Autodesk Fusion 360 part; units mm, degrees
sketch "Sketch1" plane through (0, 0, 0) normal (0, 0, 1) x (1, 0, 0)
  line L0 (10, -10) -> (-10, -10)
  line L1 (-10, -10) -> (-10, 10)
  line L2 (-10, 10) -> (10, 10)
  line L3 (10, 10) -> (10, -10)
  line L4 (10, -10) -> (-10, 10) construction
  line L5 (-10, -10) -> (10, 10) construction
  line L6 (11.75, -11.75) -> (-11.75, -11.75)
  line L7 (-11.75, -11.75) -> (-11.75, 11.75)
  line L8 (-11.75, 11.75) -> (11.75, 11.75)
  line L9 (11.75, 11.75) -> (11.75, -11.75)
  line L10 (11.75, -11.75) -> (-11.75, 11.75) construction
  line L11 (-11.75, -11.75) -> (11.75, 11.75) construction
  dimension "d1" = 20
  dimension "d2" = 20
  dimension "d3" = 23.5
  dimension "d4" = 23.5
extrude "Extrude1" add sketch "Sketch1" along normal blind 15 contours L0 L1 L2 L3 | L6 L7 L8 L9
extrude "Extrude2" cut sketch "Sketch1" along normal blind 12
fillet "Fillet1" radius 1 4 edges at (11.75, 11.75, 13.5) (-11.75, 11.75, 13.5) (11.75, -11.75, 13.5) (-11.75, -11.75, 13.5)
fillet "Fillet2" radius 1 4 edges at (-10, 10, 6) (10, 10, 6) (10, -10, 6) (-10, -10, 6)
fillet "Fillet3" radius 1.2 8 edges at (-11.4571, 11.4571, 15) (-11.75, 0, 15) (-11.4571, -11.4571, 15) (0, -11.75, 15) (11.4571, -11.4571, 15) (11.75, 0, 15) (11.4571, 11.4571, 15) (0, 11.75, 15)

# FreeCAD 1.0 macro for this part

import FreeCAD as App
import Part
import Sketcher
Q = App.Units.Quantity


def edges_at(feature, points):
    """Names of the edges that pass closest to the given points."""
    edges = feature.Shape.Edges
    near = lambda p: min(range(len(edges)), key=lambda i: edges[i].distToShape(Part.Vertex(*p))[0])
    return sorted({f"Edge{near(p) + 1}" for p in points})


def add_polygon(sketch, points):
    """Adds a closed chain of lines whose ends are joined by coincident constraints."""
    first, n = sketch.GeometryCount, len(points)
    for a, b in zip(points, points[1:] + points[:1]):
        sketch.addGeometry(Part.LineSegment(App.Vector(*a, 0), App.Vector(*b, 0)), False)
    for i in range(n):
        sketch.addConstraint(Sketcher.Constraint("Coincident", first + i, 2, first + (i + 1) % n, 1))

doc = App.newDocument("Part")
body = doc.addObject("PartDesign::Body", "Body")

# Sketch on XY plane
sketch1 = body.newObject("Sketcher::SketchObject", "Sketch")
sketch1.AttachmentSupport = (doc.getObject("XY_Plane"), [""])
sketch1.MapMode = "FlatFace"
add_polygon(sketch1, [(-12, -12), (12, -12), (12, 12), (-12, 12)])  # lines 0-3
sketch1.addConstraint([
    Sketcher.Constraint("Horizontal", 0),
    Sketcher.Constraint("Vertical", 1),
    Sketcher.Constraint("Horizontal", 2),
    Sketcher.Constraint("Vertical", 3),
    Sketcher.Constraint("Symmetric", 0, 2, 2, 2, -1, 1),
    Sketcher.Constraint("Equal", 2, 1),
    Sketcher.Constraint("DistanceX", 0, 1, 0, 2, Q("23.5 mm")),
])
pad1 = body.newObject("PartDesign::Pad", "Pad")
pad1.Profile = sketch1
pad1.Length = 15

# Sketch on XY plane
sketch2 = body.newObject("Sketcher::SketchObject", "Sketch001")
sketch2.AttachmentSupport = (doc.getObject("XY_Plane"), [""])
sketch2.MapMode = "FlatFace"
add_polygon(sketch2, [(-12, -12), (12, -12), (12, 12), (-12, 12)])  # lines 0-3
add_polygon(sketch2, [(10, 10), (10, -10), (-10, -10), (-10, 10)])  # lines 4-7
sketch2.addConstraint([
    Sketcher.Constraint("Horizontal", 0),
    Sketcher.Constraint("Vertical", 1),
    Sketcher.Constraint("Horizontal", 2),
    Sketcher.Constraint("Vertical", 3),
    Sketcher.Constraint("Vertical", 4),
    Sketcher.Constraint("Horizontal", 5),
    Sketcher.Constraint("Vertical", 6),
    Sketcher.Constraint("Horizontal", 7),
    Sketcher.Constraint("Symmetric", 0, 2, 2, 2, -1, 1),
    Sketcher.Constraint("Symmetric", 4, 2, 6, 2, -1, 1),
    Sketcher.Constraint("Equal", 2, 1),
    Sketcher.Constraint("Equal", 7, 4),
    Sketcher.Constraint("DistanceX", 5, 2, 5, 1, Q("20 mm")),
    Sketcher.Constraint("DistanceX", 0, 1, 0, 2, Q("23.5 mm")),
])
pocket1 = body.newObject("PartDesign::Pocket", "Pocket")
pocket1.Profile = sketch2
pocket1.Length = 12
pocket1.Reversed = True
doc.recompute()

fillet = body.newObject("PartDesign::Fillet", "Fillet")
fillet.Base = (pocket1, edges_at(pocket1, [
    (11.75, 11.75, 13.5),
    (-11.75, 11.75, 13.5),
    (11.75, -11.75, 13.5),
    (-11.75, -11.75, 13.5),
]))
fillet.Radius = 1
doc.recompute()

fillet2 = body.newObject("PartDesign::Fillet", "Fillet001")
fillet2.Base = (fillet, edges_at(fillet, [
    (-10, 10, 6),
    (10, 10, 6),
    (10, -10, 6),
    (-10, -10, 6),
]))
fillet2.Radius = 1
doc.recompute()

fillet3 = body.newObject("PartDesign::Fillet", "Fillet002")
fillet3.Base = (fillet2, edges_at(fillet2, [
    (-11.457, 11.457, 15),
    (-11.75, 0, 15),
    (-11.457, -11.457, 15),
    (0, -11.75, 15),
    (11.457, -11.457, 15),
    (11.75, 0, 15),
    (11.457, 11.457, 15),
    (0, 11.75, 15),
]))
fillet3.Radius = 1.2

doc.recompute()
